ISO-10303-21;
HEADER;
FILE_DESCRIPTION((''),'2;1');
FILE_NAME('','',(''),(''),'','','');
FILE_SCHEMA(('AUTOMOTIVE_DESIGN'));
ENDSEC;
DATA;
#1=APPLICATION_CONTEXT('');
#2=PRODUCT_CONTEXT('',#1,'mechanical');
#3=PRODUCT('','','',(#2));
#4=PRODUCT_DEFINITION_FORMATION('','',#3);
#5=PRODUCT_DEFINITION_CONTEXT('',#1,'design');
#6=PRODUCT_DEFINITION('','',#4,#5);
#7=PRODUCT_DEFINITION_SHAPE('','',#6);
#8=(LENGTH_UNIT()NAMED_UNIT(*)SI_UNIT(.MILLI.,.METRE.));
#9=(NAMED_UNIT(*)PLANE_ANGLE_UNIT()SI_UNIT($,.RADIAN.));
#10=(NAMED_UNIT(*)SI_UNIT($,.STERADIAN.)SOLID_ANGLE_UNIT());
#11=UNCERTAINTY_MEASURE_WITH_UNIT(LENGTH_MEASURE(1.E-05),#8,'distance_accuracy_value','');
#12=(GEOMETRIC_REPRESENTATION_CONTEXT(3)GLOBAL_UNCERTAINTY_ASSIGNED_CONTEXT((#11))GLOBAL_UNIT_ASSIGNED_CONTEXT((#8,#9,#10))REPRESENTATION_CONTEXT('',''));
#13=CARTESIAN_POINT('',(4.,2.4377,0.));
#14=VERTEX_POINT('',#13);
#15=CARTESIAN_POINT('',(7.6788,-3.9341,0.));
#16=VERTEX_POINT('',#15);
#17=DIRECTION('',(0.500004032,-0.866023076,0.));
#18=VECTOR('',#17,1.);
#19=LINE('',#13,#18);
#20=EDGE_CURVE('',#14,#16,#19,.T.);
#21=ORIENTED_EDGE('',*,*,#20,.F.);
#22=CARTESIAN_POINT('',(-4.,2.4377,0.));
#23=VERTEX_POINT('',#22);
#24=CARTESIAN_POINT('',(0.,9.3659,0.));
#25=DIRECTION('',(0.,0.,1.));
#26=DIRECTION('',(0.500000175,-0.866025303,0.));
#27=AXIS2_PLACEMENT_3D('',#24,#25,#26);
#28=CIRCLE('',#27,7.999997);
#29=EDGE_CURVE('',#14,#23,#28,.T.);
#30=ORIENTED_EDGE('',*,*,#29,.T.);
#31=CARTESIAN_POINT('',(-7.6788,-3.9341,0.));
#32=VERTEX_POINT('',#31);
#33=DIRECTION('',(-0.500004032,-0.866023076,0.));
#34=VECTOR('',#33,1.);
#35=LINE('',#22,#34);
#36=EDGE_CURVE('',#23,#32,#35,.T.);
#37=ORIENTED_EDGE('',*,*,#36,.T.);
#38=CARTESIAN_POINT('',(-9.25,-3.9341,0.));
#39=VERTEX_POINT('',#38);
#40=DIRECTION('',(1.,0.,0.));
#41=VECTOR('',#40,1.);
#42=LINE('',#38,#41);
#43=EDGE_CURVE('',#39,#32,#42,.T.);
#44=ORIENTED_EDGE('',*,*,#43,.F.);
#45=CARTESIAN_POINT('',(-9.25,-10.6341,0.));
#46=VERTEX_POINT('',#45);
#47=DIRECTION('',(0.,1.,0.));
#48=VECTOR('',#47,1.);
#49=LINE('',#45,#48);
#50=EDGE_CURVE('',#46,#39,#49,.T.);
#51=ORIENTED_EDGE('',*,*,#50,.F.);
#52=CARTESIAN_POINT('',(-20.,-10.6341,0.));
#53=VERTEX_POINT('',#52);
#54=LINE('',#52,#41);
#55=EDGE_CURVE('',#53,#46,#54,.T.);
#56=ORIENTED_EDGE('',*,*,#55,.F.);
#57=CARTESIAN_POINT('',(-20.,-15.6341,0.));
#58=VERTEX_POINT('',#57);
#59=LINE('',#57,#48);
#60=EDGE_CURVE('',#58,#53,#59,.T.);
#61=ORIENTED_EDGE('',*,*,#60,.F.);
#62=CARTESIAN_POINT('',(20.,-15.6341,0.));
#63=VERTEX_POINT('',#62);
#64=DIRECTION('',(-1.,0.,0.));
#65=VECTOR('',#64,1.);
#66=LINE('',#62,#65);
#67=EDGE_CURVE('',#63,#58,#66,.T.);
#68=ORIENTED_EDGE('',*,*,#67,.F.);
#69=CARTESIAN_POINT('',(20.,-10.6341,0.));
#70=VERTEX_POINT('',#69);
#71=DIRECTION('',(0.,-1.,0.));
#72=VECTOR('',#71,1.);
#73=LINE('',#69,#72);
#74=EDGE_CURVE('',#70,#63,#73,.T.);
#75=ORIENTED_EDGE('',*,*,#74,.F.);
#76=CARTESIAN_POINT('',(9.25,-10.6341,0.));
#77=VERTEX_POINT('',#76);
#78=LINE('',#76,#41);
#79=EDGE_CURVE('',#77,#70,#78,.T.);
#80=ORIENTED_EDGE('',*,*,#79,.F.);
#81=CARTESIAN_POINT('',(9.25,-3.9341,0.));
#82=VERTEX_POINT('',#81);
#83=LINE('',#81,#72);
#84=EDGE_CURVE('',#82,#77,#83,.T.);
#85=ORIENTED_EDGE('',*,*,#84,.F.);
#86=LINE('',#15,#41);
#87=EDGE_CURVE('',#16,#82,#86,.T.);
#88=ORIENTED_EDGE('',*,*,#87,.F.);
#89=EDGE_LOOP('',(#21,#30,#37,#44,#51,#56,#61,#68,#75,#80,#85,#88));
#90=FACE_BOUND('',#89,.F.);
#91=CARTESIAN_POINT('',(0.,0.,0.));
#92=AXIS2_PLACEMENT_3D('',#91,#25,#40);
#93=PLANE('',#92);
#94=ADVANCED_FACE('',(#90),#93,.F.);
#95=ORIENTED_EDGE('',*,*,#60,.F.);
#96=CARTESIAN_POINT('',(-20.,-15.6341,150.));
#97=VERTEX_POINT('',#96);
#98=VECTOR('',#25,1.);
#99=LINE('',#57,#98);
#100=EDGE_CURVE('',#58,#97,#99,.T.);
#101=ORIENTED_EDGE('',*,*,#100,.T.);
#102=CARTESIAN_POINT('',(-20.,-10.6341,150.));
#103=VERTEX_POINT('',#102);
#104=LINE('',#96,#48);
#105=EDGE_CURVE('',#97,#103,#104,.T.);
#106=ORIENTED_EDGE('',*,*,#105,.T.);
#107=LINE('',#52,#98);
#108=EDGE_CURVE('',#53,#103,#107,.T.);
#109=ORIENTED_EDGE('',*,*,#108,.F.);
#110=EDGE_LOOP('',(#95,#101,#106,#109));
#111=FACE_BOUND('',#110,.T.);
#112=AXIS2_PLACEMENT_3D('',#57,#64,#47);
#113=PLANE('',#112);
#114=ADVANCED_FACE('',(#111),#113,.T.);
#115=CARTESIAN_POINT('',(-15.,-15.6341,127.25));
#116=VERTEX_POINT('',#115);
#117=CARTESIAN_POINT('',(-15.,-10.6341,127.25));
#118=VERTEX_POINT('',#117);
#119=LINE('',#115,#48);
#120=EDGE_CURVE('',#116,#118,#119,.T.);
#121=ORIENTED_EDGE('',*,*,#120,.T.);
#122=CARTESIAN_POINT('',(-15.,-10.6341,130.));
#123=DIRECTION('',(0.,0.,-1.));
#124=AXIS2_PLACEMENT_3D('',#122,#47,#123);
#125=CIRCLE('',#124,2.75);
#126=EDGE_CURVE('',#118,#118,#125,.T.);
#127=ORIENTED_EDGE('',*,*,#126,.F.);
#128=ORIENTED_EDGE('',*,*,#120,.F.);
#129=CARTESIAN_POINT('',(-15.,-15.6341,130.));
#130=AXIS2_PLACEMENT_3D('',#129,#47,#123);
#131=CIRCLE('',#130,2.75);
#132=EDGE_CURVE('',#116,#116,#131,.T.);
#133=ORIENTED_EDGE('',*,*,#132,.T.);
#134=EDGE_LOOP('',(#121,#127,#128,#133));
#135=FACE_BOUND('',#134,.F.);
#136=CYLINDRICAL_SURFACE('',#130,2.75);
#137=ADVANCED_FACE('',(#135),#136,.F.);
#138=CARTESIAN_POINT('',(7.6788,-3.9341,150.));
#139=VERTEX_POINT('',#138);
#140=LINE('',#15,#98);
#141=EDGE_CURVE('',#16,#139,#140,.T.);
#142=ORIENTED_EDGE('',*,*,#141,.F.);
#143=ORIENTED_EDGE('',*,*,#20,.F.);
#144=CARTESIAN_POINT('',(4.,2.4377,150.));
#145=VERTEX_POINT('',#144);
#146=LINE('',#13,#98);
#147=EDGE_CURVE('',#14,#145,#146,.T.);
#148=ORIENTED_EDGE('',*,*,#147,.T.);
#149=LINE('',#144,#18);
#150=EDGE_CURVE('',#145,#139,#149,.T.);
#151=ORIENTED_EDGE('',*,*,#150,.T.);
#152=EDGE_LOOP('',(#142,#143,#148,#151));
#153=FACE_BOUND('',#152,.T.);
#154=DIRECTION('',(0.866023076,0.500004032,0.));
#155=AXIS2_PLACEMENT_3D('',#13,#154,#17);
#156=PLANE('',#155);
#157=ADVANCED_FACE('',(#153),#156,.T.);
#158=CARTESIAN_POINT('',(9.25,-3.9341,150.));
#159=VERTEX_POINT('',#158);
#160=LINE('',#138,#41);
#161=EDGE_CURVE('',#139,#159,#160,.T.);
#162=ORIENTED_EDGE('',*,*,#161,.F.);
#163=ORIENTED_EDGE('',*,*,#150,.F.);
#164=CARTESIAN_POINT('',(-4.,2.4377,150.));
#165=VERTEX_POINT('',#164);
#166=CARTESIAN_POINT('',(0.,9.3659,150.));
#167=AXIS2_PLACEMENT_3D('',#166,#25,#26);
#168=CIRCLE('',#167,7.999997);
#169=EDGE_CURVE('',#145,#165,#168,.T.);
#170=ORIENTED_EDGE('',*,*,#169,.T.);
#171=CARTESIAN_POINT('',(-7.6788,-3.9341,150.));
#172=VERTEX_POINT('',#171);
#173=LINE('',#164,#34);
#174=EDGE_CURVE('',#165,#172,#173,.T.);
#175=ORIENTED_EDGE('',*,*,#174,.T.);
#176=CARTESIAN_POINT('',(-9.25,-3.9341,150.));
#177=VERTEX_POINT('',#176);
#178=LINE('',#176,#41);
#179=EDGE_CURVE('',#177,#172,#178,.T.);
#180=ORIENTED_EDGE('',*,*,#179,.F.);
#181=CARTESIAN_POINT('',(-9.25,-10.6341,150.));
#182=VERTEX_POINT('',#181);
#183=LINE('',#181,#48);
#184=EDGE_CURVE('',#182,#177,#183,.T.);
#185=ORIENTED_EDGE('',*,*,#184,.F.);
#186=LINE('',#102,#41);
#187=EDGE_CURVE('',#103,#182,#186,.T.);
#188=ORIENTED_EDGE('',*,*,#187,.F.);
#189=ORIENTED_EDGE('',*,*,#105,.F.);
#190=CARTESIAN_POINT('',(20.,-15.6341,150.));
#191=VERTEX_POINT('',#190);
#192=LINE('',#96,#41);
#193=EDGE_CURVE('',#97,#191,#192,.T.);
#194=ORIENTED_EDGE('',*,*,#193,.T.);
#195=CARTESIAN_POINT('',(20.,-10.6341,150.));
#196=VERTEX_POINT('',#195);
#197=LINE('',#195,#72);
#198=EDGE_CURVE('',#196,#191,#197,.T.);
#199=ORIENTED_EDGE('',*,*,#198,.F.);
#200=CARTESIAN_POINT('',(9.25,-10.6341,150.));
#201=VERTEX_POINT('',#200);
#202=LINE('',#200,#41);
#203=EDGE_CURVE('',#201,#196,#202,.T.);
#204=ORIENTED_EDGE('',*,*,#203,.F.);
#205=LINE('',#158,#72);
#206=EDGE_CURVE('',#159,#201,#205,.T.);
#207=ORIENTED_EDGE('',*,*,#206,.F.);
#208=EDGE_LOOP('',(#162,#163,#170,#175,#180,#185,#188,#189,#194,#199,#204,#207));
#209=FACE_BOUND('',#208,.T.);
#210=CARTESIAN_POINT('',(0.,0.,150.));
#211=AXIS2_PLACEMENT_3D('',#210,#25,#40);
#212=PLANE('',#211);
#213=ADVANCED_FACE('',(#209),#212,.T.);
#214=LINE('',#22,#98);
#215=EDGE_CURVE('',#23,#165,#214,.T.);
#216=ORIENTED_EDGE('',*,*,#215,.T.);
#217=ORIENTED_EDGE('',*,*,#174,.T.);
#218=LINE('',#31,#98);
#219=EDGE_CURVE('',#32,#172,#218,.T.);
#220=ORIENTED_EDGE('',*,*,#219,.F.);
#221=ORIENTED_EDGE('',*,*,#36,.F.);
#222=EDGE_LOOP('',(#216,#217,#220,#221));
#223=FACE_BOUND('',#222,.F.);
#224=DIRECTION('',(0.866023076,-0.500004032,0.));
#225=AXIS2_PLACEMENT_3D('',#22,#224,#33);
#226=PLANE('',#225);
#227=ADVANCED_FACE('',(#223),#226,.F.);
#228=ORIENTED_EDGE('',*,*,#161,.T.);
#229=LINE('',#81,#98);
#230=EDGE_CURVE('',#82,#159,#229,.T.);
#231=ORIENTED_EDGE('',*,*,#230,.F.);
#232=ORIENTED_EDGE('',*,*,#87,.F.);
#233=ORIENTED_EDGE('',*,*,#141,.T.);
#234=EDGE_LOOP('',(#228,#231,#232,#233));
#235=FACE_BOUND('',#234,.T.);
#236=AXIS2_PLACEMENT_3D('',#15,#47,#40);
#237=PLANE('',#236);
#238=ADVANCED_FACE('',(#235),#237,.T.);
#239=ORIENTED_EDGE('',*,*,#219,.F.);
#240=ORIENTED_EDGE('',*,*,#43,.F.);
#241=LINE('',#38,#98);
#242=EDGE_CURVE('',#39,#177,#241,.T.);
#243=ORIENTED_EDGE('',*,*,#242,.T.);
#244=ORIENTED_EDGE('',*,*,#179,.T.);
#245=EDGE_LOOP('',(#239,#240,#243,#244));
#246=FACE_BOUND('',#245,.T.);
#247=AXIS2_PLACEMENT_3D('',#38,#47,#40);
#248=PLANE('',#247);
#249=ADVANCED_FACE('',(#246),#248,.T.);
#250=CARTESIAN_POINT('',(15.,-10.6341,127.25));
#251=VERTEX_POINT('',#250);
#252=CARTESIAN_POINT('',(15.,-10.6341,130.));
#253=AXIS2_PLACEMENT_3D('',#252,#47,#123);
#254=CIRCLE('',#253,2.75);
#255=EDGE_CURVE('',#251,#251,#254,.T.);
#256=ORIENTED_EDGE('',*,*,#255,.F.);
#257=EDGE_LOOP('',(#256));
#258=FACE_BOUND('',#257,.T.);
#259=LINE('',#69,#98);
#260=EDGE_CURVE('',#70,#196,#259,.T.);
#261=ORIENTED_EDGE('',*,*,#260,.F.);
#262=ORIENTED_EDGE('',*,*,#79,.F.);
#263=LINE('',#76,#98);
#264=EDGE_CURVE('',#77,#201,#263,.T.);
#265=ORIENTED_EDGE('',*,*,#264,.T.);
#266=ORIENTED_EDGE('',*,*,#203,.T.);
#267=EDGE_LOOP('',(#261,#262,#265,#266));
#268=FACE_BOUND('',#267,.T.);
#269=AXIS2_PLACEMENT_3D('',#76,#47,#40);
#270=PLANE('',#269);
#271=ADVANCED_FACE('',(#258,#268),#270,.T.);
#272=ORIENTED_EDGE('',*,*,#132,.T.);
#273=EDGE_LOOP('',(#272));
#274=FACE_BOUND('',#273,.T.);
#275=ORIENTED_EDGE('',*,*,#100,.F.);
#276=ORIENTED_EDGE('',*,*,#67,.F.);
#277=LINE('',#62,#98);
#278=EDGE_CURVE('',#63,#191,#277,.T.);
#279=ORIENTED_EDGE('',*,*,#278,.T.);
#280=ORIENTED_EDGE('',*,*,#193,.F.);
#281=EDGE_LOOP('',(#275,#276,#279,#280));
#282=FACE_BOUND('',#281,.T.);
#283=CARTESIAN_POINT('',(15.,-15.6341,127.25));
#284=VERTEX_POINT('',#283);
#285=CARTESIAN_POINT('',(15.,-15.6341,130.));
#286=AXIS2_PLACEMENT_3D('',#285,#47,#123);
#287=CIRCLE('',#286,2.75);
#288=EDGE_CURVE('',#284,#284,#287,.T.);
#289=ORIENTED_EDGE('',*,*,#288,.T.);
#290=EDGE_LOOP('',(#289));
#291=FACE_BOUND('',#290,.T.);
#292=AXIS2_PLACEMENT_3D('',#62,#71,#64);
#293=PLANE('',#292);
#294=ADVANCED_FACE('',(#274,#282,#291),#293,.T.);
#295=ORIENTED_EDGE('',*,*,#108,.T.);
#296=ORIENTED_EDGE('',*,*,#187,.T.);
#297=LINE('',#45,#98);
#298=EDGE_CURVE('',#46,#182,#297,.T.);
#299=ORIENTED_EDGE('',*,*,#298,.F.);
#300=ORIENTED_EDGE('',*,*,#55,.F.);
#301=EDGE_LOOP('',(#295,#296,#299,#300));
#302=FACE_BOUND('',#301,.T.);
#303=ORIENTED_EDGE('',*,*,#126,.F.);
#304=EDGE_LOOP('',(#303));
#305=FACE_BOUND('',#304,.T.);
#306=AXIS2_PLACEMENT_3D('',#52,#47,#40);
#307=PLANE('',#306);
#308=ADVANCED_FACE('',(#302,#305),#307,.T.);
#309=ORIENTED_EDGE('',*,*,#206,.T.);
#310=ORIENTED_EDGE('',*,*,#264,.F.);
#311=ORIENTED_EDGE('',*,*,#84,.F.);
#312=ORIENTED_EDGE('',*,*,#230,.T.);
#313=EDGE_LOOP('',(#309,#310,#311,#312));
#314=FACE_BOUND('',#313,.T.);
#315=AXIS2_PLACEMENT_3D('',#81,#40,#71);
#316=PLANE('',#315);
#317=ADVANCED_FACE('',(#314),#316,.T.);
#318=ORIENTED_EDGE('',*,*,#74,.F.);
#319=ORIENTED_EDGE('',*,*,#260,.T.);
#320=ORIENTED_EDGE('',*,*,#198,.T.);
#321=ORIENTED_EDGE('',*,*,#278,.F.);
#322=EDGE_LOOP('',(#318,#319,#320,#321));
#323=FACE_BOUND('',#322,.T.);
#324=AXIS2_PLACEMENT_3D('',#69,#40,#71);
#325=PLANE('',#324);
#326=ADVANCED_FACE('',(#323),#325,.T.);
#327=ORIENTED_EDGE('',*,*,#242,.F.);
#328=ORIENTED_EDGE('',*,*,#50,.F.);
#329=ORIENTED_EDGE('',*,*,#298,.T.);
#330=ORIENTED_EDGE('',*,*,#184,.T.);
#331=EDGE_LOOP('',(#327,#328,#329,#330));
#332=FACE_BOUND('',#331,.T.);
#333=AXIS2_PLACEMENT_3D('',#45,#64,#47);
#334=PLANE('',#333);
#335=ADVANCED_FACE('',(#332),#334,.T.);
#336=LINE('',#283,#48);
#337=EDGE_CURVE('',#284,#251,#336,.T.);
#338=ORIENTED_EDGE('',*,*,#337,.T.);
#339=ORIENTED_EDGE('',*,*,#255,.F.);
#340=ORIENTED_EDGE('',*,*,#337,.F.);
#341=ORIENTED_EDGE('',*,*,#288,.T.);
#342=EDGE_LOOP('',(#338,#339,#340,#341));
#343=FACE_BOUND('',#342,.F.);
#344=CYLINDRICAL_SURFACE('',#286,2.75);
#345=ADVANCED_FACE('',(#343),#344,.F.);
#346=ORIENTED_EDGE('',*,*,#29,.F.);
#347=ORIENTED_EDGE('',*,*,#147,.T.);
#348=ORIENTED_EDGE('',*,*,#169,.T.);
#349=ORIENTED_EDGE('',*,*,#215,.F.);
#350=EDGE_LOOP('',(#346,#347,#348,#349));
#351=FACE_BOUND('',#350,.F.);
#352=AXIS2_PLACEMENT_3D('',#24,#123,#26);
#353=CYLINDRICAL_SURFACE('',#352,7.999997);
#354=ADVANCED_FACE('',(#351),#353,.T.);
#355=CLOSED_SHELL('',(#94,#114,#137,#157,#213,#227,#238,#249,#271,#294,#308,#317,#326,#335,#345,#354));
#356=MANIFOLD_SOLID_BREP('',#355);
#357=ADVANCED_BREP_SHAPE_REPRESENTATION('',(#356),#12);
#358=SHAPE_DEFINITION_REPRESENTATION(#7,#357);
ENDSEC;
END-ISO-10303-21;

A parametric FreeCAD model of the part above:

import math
import FreeCAD as App
import Part
import Sketcher
from FreeCAD import Vector
Q = App.Units.Quantity

doc = App.newDocument("Part")
body = doc.addObject("PartDesign::Body", "Body")

# Sketch on XY plane
sketch1 = body.newObject("Sketcher::SketchObject", "Sketch")
sketch1.AttachmentSupport = (doc.getObject("XY_Plane"), [""])
sketch1.MapMode = "FlatFace"
sketch1.addGeometry([
    Part.LineSegment(Vector(7.6788, -3.9341, 0), Vector(4, 2.4377, 0)),  # 0
    Part.ArcOfCircle(Part.Circle(Vector(0, 9.3659, 0), Vector(0, 0, 1), 7.999997), math.radians(-59.999988), math.radians(239.999988)),  # 1
    Part.LineSegment(Vector(-4, 2.4377, 0), Vector(-7.6788, -3.9341, 0)),  # 2
    Part.LineSegment(Vector(-7.6788, -3.9341, 0), Vector(-9.25, -3.9341, 0)),  # 3
    Part.LineSegment(Vector(-9.25, -3.9341, 0), Vector(-9.25, -10.6341, 0)),  # 4
    Part.LineSegment(Vector(-9.25, -10.6341, 0), Vector(-20, -10.6341, 0)),  # 5
    Part.LineSegment(Vector(-20, -10.6341, 0), Vector(-20, -15.6341, 0)),  # 6
    Part.LineSegment(Vector(-20, -15.6341, 0), Vector(20, -15.6341, 0)),  # 7
    Part.LineSegment(Vector(20, -15.6341, 0), Vector(20, -10.6341, 0)),  # 8
    Part.LineSegment(Vector(20, -10.6341, 0), Vector(9.25, -10.6341, 0)),  # 9
    Part.LineSegment(Vector(9.25, -10.6341, 0), Vector(9.25, -3.9341, 0)),  # 10
    Part.LineSegment(Vector(9.25, -3.9341, 0), Vector(7.6788, -3.9341, 0)),  # 11
], False)
sketch1.addConstraint([
    Sketcher.Constraint("Coincident", 0, 2, 1, 1),
    Sketcher.Constraint("Coincident", 1, 2, 2, 1),
    Sketcher.Constraint("Coincident", 2, 2, 3, 1),
    Sketcher.Constraint("Coincident", 3, 2, 4, 1),
    Sketcher.Constraint("Coincident", 4, 2, 5, 1),
    Sketcher.Constraint("Coincident", 5, 2, 6, 1),
    Sketcher.Constraint("Coincident", 6, 2, 7, 1),
    Sketcher.Constraint("Coincident", 7, 2, 8, 1),
    Sketcher.Constraint("Coincident", 8, 2, 9, 1),
    Sketcher.Constraint("Coincident", 9, 2, 10, 1),
    Sketcher.Constraint("Coincident", 10, 2, 11, 1),
    Sketcher.Constraint("Coincident", 11, 2, 0, 1),
    Sketcher.Constraint("Horizontal", 3),
    Sketcher.Constraint("Vertical", 4),
    Sketcher.Constraint("Horizontal", 5),
    Sketcher.Constraint("Vertical", 6),
    Sketcher.Constraint("Horizontal", 7),
    Sketcher.Constraint("Vertical", 8),
    Sketcher.Constraint("Horizontal", 9),
    Sketcher.Constraint("Vertical", 10),
    Sketcher.Constraint("Horizontal", 11),
    Sketcher.Constraint("Symmetric", 0, 2, 1, 2, -2),
    Sketcher.Constraint("Symmetric", 5, 2, 8, 2, -2),
    Sketcher.Constraint("Symmetric", 3, 2, 10, 2, -2),
    Sketcher.Constraint("Equal", 3, 11),
    Sketcher.Constraint("Radius", 1, 8.0),
    Sketcher.Constraint("DistanceX", 7, 1, 7, 2, 40.0),
    Sketcher.Constraint("DistanceY", 6, 2, 6, 1, 5.0),
    Sketcher.Constraint("DistanceX", 1, 2, 0, 2, 8.0),
    Sketcher.Constraint("DistanceY", 6, 2, 3, 2, 11.7),
    Sketcher.Constraint("DistanceX", 4, 2, 9, 2, 18.5),
    Sketcher.Constraint("Angle", 0, Q("120.0003 deg")),
    Sketcher.Constraint("DistanceY", 4, 2, 1, 3, 20.0),
    Sketcher.Constraint("DistanceY", -1, 1, 1, 3, 9.366),
])
pad1 = body.newObject("PartDesign::Pad", "Pad")
pad1.Profile = sketch1
pad1.Length = 150

# Sketch on XZ plane
sketch2 = body.newObject("Sketcher::SketchObject", "Sketch001")
sketch2.AttachmentSupport = (doc.getObject("XZ_Plane"), [""])
sketch2.MapMode = "FlatFace"
sketch2.AttachmentOffset = App.Placement(Vector(0, 0, 15.6341), App.Rotation())
sketch2.addGeometry([
    Part.Circle(Vector(-15, 130, 0), Vector(0, 0, 1), 2.75),
    Part.Circle(Vector(15, 130, 0), Vector(0, 0, 1), 2.75),
], False)
sketch2.addConstraint([
    Sketcher.Constraint("Equal", 0, 1),
    Sketcher.Constraint("Symmetric", 0, 3, 1, 3, -2),
    Sketcher.Constraint("Diameter", 0, 5.5),
    Sketcher.Constraint("DistanceX", 0, 3, -1, 1, 15.0),
    Sketcher.Constraint("DistanceY", -1, 1, 0, 3, 130.0),
])
doc.recompute()
hole = body.newObject("PartDesign::Hole", "Hole")
hole.Profile = sketch2
hole.ThreadType = "None"
hole.Diameter = 5.5
hole.DepthType = "Dimension"
hole.Depth = 8
hole.DrillPoint = "Angled"
hole.DrillPointAngle = 118

doc.recompute()
